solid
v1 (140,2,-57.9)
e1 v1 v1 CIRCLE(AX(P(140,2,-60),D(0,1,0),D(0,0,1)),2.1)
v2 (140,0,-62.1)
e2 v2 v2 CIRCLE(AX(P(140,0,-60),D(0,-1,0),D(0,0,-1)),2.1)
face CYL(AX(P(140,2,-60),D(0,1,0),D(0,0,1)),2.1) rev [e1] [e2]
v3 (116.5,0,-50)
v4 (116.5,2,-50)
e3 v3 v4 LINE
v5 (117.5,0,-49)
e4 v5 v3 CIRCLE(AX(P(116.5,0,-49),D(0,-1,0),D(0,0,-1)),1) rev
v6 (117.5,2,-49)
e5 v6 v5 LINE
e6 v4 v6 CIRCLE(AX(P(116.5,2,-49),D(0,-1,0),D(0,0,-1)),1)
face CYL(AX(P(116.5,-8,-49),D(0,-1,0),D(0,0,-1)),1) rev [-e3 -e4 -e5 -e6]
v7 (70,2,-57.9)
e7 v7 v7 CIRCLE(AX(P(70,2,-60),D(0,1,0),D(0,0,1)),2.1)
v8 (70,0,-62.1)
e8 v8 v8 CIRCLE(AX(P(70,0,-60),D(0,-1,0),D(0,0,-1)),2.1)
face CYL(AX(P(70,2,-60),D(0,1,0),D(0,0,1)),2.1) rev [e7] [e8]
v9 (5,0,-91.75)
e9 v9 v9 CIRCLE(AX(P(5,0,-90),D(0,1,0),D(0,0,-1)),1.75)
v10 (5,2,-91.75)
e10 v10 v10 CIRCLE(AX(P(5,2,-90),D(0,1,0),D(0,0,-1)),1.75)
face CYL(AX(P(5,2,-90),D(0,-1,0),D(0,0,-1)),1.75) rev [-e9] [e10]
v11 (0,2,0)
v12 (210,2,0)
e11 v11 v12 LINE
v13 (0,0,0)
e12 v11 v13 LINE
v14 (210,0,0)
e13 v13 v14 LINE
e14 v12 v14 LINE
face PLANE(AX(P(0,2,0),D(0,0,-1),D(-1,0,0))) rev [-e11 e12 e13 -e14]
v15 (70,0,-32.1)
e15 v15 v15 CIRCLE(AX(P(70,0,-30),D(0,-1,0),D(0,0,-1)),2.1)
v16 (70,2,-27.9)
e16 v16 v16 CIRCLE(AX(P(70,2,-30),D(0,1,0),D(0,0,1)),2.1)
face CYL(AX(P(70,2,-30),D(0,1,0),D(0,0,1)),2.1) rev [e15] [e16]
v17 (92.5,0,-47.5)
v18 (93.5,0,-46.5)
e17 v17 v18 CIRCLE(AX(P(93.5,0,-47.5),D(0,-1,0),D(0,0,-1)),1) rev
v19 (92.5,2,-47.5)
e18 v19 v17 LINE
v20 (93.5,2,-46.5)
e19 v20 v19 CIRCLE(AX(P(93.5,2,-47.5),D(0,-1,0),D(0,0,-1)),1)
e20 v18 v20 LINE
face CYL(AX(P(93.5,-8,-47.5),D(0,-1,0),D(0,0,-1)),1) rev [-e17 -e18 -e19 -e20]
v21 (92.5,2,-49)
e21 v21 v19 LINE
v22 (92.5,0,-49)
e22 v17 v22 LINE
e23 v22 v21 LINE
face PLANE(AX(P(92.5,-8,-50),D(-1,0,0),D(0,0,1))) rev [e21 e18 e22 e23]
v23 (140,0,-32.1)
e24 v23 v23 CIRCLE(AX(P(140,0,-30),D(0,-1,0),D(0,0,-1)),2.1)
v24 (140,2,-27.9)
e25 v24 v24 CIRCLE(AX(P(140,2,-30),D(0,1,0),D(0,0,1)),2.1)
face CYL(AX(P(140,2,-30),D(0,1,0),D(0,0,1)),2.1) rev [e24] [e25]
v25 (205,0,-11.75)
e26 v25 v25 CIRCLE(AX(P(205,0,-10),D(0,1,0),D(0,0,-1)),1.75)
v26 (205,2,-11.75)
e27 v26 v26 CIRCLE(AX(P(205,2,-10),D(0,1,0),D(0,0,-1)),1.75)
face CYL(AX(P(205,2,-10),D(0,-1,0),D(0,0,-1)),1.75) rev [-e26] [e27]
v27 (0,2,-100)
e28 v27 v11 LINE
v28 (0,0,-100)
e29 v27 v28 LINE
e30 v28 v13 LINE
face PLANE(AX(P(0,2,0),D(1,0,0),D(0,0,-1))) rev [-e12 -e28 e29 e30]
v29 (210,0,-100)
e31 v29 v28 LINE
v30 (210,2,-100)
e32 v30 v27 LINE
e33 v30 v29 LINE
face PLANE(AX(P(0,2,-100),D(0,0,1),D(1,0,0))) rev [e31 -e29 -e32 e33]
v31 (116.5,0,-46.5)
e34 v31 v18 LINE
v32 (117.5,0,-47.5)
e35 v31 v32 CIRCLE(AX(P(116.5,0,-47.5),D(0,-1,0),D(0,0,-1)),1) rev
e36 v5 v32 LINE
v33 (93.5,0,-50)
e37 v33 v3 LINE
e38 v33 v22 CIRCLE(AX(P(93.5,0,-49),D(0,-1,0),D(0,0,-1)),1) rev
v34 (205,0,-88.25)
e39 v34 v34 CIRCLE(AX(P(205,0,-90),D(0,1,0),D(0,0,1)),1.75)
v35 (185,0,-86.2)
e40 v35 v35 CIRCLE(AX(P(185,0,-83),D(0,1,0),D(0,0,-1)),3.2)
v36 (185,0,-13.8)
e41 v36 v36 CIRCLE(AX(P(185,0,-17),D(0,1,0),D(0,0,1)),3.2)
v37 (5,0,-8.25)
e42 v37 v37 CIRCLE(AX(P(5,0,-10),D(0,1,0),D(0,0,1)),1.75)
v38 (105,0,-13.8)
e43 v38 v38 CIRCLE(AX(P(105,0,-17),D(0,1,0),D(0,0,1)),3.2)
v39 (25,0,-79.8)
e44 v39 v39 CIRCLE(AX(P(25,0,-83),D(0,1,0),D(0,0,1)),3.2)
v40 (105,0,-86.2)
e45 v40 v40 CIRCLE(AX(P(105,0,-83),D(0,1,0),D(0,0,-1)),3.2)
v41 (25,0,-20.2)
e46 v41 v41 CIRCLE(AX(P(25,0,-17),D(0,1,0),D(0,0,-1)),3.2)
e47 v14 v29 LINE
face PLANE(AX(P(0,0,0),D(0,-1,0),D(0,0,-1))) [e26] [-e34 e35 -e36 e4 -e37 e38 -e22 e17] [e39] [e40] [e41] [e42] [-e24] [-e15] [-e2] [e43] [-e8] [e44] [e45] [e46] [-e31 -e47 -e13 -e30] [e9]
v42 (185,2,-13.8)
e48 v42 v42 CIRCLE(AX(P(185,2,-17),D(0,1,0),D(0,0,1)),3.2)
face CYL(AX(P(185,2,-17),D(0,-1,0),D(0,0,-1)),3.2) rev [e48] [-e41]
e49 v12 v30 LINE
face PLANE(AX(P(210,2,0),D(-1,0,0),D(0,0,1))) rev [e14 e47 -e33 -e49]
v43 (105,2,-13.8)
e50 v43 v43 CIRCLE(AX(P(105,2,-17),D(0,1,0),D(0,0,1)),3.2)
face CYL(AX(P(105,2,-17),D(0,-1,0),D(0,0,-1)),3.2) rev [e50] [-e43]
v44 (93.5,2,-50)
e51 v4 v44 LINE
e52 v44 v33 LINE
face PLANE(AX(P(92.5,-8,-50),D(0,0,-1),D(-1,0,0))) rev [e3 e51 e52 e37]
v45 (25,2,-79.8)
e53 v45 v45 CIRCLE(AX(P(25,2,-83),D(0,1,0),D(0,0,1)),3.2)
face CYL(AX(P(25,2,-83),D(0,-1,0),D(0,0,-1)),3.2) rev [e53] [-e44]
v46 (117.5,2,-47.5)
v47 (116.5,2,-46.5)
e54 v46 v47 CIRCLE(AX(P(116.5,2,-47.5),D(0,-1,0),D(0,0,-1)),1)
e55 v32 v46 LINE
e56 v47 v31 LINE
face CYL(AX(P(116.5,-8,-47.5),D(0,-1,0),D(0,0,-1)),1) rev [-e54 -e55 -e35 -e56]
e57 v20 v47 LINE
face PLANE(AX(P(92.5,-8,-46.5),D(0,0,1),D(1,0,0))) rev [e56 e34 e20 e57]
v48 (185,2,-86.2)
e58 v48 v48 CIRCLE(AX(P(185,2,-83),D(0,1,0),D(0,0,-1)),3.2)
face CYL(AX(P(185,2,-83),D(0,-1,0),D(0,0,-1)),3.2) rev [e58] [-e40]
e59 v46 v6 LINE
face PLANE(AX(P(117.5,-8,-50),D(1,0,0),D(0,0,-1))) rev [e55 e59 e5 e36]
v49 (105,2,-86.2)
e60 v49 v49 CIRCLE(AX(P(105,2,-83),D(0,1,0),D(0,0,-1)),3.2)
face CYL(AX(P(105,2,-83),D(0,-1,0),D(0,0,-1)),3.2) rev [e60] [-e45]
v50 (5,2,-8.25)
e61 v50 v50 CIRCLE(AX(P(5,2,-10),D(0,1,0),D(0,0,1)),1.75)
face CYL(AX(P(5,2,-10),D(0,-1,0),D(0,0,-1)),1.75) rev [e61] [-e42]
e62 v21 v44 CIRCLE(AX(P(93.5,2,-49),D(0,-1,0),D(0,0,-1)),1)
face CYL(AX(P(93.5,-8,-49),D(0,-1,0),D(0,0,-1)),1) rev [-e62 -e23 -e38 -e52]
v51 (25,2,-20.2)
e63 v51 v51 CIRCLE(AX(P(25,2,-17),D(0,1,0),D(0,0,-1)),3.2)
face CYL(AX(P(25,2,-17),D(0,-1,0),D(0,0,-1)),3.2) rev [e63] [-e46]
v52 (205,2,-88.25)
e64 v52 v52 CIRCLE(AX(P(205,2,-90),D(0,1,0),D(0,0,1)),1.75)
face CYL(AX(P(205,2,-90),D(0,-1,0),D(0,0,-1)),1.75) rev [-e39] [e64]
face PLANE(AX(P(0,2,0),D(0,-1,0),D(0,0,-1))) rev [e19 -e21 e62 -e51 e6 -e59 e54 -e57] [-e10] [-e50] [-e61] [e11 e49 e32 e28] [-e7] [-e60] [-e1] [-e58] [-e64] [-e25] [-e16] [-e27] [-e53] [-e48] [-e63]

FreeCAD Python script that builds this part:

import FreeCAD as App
import Part
import Sketcher
from FreeCAD import Vector
Q = App.Units.Quantity


def edges_at(feature, points):
    """Names of the edges that pass closest to the given points."""
    edges = feature.Shape.Edges
    near = lambda p: min(range(len(edges)), key=lambda i: edges[i].distToShape(Part.Vertex(*p))[0])
    return sorted({f"Edge{near(p) + 1}" for p in points})


def add_polygon(sketch, points):
    """Adds a closed chain of lines whose ends are joined by coincident constraints."""
    first, n = sketch.GeometryCount, len(points)
    for a, b in zip(points, points[1:] + points[:1]):
        sketch.addGeometry(Part.LineSegment(App.Vector(*a, 0), App.Vector(*b, 0)), False)
    for i in range(n):
        sketch.addConstraint(Sketcher.Constraint("Coincident", first + i, 2, first + (i + 1) % n, 1))

doc = App.newDocument("Part")
params = doc.addObject("Spreadsheet::Sheet", "Params")
for row, (alias, value) in enumerate([
    ("sketch1_diameter", "3.5 mm"),
    ("sketch1_diameter2", "6.4 mm"),
    ("sketch1_width", "210 mm"),
    ("sketch1_height", "100 mm"),
    ("pad1_length", "2 mm"),
    ("sketch2_diameter", "4.2 mm"),
    ("hole_diameter", "4.2 mm"),
    ("hole_depth", "8 mm"),
    ("sketch3_width", "25 mm"),
    ("sketch3_height", "3.5 mm"),
    ("pocket1_length", "10 mm"),
    ("fillet_radius", "1 mm"),
], start=1):
    params.set(f"A{row}", alias)
    params.set(f"B{row}", "=" + value)
    params.setAlias(f"B{row}", alias)

body = doc.addObject("PartDesign::Body", "Body")

# Sketch on XZ plane
sketch1 = doc.addObject("Sketcher::SketchObject", "Sketch")
body.addObject(sketch1)
sketch1.AttachmentSupport = (doc.XZ_Plane, [""])
sketch1.MapMode = "FlatFace"
add_polygon(sketch1, [(0, -100), (0, 0), (210, 0), (210, -100)])  # lines 0-3
sketch1.addGeometry(Part.Circle(Vector(5, -10, 0), Vector(0, 0, 1), 1.8), False)  # 4
sketch1.addGeometry(Part.Circle(Vector(25, -17, 0), Vector(0, 0, 1), 3.2), False)  # 5
sketch1.addGeometry(Part.Circle(Vector(105, -17, 0), Vector(0, 0, 1), 3.2), False)  # 6
sketch1.addGeometry(Part.Circle(Vector(205, -10, 0), Vector(0, 0, 1), 1.8), False)  # 7
sketch1.addGeometry(Part.Circle(Vector(185, -17, 0), Vector(0, 0, 1), 3.2), False)  # 8
sketch1.addGeometry(Part.Circle(Vector(25, -83, 0), Vector(0, 0, 1), 3.2), False)  # 9
sketch1.addGeometry(Part.Circle(Vector(5, -90, 0), Vector(0, 0, 1), 1.8), False)  # 10
sketch1.addGeometry(Part.Circle(Vector(105, -83, 0), Vector(0, 0, 1), 3.2), False)  # 11
sketch1.addGeometry(Part.Circle(Vector(185, -83, 0), Vector(0, 0, 1), 3.2), False)  # 12
sketch1.addGeometry(Part.Circle(Vector(205, -90, 0), Vector(0, 0, 1), 1.8), False)  # 13
sketch1.addConstraint([
    Sketcher.Constraint("Vertical", 0),
    Sketcher.Constraint("Horizontal", 1),
    Sketcher.Constraint("Vertical", 2),
    Sketcher.Constraint("Horizontal", 3),
    Sketcher.Constraint("Coincident", 0, 2, -1, 1),
    Sketcher.Constraint("Equal", 5, 6),
    Sketcher.Constraint("Equal", 4, 7),
    Sketcher.Constraint("Equal", 6, 8),
    Sketcher.Constraint("Equal", 8, 9),
    Sketcher.Constraint("Equal", 7, 10),
    Sketcher.Constraint("Equal", 9, 11),
    Sketcher.Constraint("Equal", 11, 12),
    Sketcher.Constraint("Equal", 10, 13),
    Sketcher.Constraint("Horizontal", 5, 3, 6, 3),
    Sketcher.Constraint("Horizontal", 4, 3, 7, 3),
    Sketcher.Constraint("Horizontal", 6, 3, 8, 3),
    Sketcher.Constraint("Horizontal", 9, 3, 11, 3),
    Sketcher.Constraint("Horizontal", 11, 3, 12, 3),
    Sketcher.Constraint("Horizontal", 10, 3, 13, 3),
    Sketcher.Constraint("Vertical", 5, 3, 9, 3),
    Sketcher.Constraint("Vertical", 4, 3, 10, 3),
    Sketcher.Constraint("Vertical", 6, 3, 11, 3),
    Sketcher.Constraint("Vertical", 8, 3, 12, 3),
    Sketcher.Constraint("Vertical", 7, 3, 13, 3),
    Sketcher.Constraint("Diameter", 4, Q("3.5 mm")),
    Sketcher.Constraint("Diameter", 5, Q("6.4 mm")),
    Sketcher.Constraint("DistanceX", 1, 1, 1, 2, Q("210 mm")),
    Sketcher.Constraint("DistanceY", 0, 1, 0, 2, Q("100 mm")),
    Sketcher.Constraint("DistanceX", -1, 1, 4, 3, Q("5 mm")),
    Sketcher.Constraint("DistanceY", 4, 3, -1, 1, Q("10 mm")),
    Sketcher.Constraint("DistanceX", -1, 1, 5, 3, Q("25 mm")),
    Sketcher.Constraint("DistanceY", 5, 3, -1, 1, Q("17 mm")),
    Sketcher.Constraint("DistanceX", -1, 1, 6, 3, Q("105 mm")),
    Sketcher.Constraint("DistanceX", -1, 1, 7, 3, Q("205 mm")),
    Sketcher.Constraint("DistanceX", -1, 1, 8, 3, Q("185 mm")),
    Sketcher.Constraint("DistanceY", 9, 3, -1, 1, Q("83 mm")),
    Sketcher.Constraint("DistanceY", 10, 3, -1, 1, Q("90 mm")),
])
sketch1.setExpression("Constraints[28]", "Params.sketch1_diameter")
sketch1.setExpression("Constraints[29]", "Params.sketch1_diameter2")
sketch1.setExpression("Constraints[30]", "Params.sketch1_width")
sketch1.setExpression("Constraints[31]", "Params.sketch1_height")
pad1 = doc.addObject("PartDesign::Pad", "Pad")
body.addObject(pad1)
pad1.Profile = sketch1
pad1.setExpression("Length", "Params.pad1_length")
pad1.Reversed = True

# Sketch on XZ plane
sketch2 = doc.addObject("Sketcher::SketchObject", "Sketch001")
body.addObject(sketch2)
sketch2.AttachmentSupport = (doc.XZ_Plane, [""])
sketch2.MapMode = "FlatFace"
sketch2.AttachmentOffset = App.Placement(Vector(0, 0, -2), App.Rotation())
sketch2.addGeometry([
    Part.Circle(Vector(70, -60, 0), Vector(0, 0, 1), 2.1),
    Part.Circle(Vector(140, -60, 0), Vector(0, 0, 1), 2.1),
    Part.Circle(Vector(140, -30, 0), Vector(0, 0, 1), 2.1),
    Part.Circle(Vector(70, -30, 0), Vector(0, 0, 1), 2.1),
], False)
sketch2.addConstraint([
    Sketcher.Constraint("Equal", 0, 1),
    Sketcher.Constraint("Equal", 1, 2),
    Sketcher.Constraint("Equal", 2, 3),
    Sketcher.Constraint("Horizontal", 0, 3, 1, 3),
    Sketcher.Constraint("Horizontal", 2, 3, 3, 3),
    Sketcher.Constraint("Vertical", 1, 3, 2, 3),
    Sketcher.Constraint("Vertical", 0, 3, 3, 3),
    Sketcher.Constraint("Diameter", 0, Q("4.2 mm")),
    Sketcher.Constraint("DistanceX", -1, 1, 0, 3, Q("70 mm")),
    Sketcher.Constraint("DistanceY", 0, 3, -1, 1, Q("60 mm")),
    Sketcher.Constraint("DistanceX", -1, 1, 1, 3, Q("140 mm")),
    Sketcher.Constraint("DistanceY", 2, 3, -1, 1, Q("30 mm")),
])
sketch2.setExpression("Constraints[7]", "Params.sketch2_diameter")
doc.recompute()
hole = doc.addObject("PartDesign::Hole", "Hole")
body.addObject(hole)
hole.Profile = sketch2
hole.ThreadType = "None"
hole.setExpression("Diameter", "Params.hole_diameter")
hole.DepthType = "Dimension"
hole.setExpression("Depth", "Params.hole_depth")
hole.DrillPoint = "Angled"
hole.DrillPointAngle = 118
hole.Reversed = True

# Sketch on XZ plane
sketch3 = doc.addObject("Sketcher::SketchObject", "Sketch002")
body.addObject(sketch3)
sketch3.AttachmentSupport = (doc.XZ_Plane, [""])
sketch3.MapMode = "FlatFace"
sketch3.AttachmentOffset = App.Placement(Vector(0, 0, -2), App.Rotation())
add_polygon(sketch3, [(92.5, -50), (92.5, -46.5), (117.5, -46.5), (117.5, -50)])  # lines 0-3
sketch3.addConstraint([
    Sketcher.Constraint("Vertical", 0),
    Sketcher.Constraint("Horizontal", 1),
    Sketcher.Constraint("Vertical", 2),
    Sketcher.Constraint("Horizontal", 3),
    Sketcher.Constraint("DistanceX", 1, 1, 1, 2, Q("25 mm")),
    Sketcher.Constraint("DistanceY", 0, 1, 0, 2, Q("3.5 mm")),
    Sketcher.Constraint("DistanceY", 2, 2, -1, 1, Q("50 mm")),
    Sketcher.Constraint("DistanceX", -1, 1, 0, 2, Q("92.5 mm")),
])
sketch3.setExpression("Constraints[8]", "Params.sketch3_width")
sketch3.setExpression("Constraints[9]", "Params.sketch3_height")
pocket1 = doc.addObject("PartDesign::Pocket", "Pocket")
body.addObject(pocket1)
pocket1.Profile = sketch3
pocket1.setExpression("Length", "Params.pocket1_length")
pocket1.Reversed = True
doc.recompute()

fillet = doc.addObject("PartDesign::Fillet", "Fillet")
body.addObject(fillet)
fillet.Base = (pocket1, edges_at(pocket1, [
    (92.5, 1, -46.5),
    (92.5, 1, -50),
    (117.5, 1, -50),
    (117.5, 1, -46.5),
]))
fillet.setExpression("Radius", "Params.fillet_radius")

doc.recompute()
